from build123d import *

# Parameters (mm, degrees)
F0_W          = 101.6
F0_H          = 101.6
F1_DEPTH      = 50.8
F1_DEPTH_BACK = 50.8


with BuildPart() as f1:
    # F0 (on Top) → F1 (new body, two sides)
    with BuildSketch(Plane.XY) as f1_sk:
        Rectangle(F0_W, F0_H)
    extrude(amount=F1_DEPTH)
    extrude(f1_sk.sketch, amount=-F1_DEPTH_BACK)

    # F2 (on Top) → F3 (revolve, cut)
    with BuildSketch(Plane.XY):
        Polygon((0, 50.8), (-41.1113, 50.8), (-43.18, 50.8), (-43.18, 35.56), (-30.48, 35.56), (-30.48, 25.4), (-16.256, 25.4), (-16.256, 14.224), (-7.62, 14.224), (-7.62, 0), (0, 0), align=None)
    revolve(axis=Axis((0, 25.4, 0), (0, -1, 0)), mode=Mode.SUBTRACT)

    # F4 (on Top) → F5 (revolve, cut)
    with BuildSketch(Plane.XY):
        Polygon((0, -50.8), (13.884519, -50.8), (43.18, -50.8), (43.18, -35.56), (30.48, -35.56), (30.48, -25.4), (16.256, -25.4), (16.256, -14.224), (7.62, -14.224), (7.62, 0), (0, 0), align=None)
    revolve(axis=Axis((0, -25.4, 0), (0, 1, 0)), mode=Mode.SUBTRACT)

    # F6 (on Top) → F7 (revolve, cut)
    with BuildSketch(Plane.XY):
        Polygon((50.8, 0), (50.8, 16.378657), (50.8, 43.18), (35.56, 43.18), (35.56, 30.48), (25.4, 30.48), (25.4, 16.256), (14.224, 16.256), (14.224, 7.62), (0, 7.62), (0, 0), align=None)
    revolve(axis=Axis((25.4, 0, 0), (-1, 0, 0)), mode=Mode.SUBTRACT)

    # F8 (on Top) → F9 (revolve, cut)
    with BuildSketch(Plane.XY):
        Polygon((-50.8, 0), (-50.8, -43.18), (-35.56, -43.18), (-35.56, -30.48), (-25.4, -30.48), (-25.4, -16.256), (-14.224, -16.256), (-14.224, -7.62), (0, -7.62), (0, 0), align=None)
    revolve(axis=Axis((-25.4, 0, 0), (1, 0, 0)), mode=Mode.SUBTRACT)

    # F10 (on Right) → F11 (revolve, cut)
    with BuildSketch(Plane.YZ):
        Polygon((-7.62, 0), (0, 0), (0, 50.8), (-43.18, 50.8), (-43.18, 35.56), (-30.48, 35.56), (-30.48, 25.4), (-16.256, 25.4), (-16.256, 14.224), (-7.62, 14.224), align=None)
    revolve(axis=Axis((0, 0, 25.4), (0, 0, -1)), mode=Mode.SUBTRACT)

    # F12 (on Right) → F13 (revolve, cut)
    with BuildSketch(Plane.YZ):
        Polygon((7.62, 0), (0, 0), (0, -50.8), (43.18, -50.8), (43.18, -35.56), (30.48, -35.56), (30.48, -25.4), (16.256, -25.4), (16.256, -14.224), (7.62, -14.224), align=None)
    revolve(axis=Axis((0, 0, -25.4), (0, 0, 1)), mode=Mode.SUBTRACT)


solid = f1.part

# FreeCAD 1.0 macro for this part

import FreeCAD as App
import Part
import Sketcher
from FreeCAD import Vector
Q = App.Units.Quantity


def add_polygon(sketch, points):
    """Adds a closed chain of lines whose ends are joined by coincident constraints."""
    first, n = sketch.GeometryCount, len(points)
    for a, b in zip(points, points[1:] + points[:1]):
        sketch.addGeometry(Part.LineSegment(App.Vector(*a, 0), App.Vector(*b, 0)), False)
    for i in range(n):
        sketch.addConstraint(Sketcher.Constraint("Coincident", first + i, 2, first + (i + 1) % n, 1))

doc = App.newDocument("Part")
body = doc.addObject("PartDesign::Body", "Body")

# Sketch on XY plane
sketch1 = body.newObject("Sketcher::SketchObject", "Sketch")
sketch1.AttachmentSupport = (doc.getObject("XY_Plane"), [""])
sketch1.MapMode = "FlatFace"
add_polygon(sketch1, [(-51, 51), (-51, -51), (51, -51), (51, 51)])  # lines 0-3
sketch1.addConstraint(Sketcher.Constraint("Vertical", 0))
sketch1.addConstraint(Sketcher.Constraint("Horizontal", 1))
sketch1.addConstraint(Sketcher.Constraint("Vertical", 2))
sketch1.addConstraint(Sketcher.Constraint("Horizontal", 3))
sketch1.addConstraint(Sketcher.Constraint("Symmetric", 0, 2, 2, 2, -1, 1))
sketch1.addConstraint(Sketcher.Constraint("Equal", 3, 0))
sketch1.addConstraint(Sketcher.Constraint("DistanceX", 1, 1, 1, 2, Q("4 in")))
pad1 = body.newObject("PartDesign::Pad", "Pad")
pad1.Profile = sketch1
pad1.Type = "TwoLengths"
pad1.Length = Q("2 in")
pad1.Length2 = Q("2 in")

# Sketch on XY plane
sketch2 = body.newObject("Sketcher::SketchObject", "Sketch001")
sketch2.AttachmentSupport = (doc.getObject("XY_Plane"), [""])
sketch2.MapMode = "FlatFace"
add_polygon(sketch2, [(0, 51), (-43, 51), (-43, 36), (-30, 36), (-30, 25), (-16, 25), (-16, 14), (-8, 14), (-8, 0), (0, 0)])  # lines 0-9
sketch2.addConstraint(Sketcher.Constraint("Horizontal", 0))
sketch2.addConstraint(Sketcher.Constraint("Vertical", 1))
sketch2.addConstraint(Sketcher.Constraint("Horizontal", 2))
sketch2.addConstraint(Sketcher.Constraint("Vertical", 3))
sketch2.addConstraint(Sketcher.Constraint("Horizontal", 4))
sketch2.addConstraint(Sketcher.Constraint("Vertical", 5))
sketch2.addConstraint(Sketcher.Constraint("Horizontal", 6))
sketch2.addConstraint(Sketcher.Constraint("Vertical", 7))
sketch2.addConstraint(Sketcher.Constraint("Horizontal", 8))
sketch2.addConstraint(Sketcher.Constraint("Vertical", 9))
sketch2.addConstraint(Sketcher.Constraint("Coincident", 8, 2, -1, 1))
sketch2.addConstraint(Sketcher.Constraint("Equal", 4, 7))
sketch2.addConstraint(Sketcher.Constraint("DistanceY", 9, 1, 9, 2, Q("2 in")))
sketch2.addConstraint(Sketcher.Constraint("DistanceX", 0, 2, 0, 1, Q("1.7 in")))
sketch2.addConstraint(Sketcher.Constraint("DistanceX", 2, 1, 2, 2, Q("0.5 in")))
sketch2.addConstraint(Sketcher.Constraint("DistanceX", 8, 1, 8, 2, Q("0.3 in")))
sketch2.addConstraint(Sketcher.Constraint("DistanceY", 1, 2, 1, 1, Q("0.6 in")))
sketch2.addConstraint(Sketcher.Constraint("DistanceY", 3, 2, 3, 1, Q("0.4 in")))
sketch2.addConstraint(Sketcher.Constraint("DistanceX", 4, 1, 4, 2, Q("0.56 in")))
groove = body.newObject("PartDesign::Groove", "Groove")
groove.Profile = sketch2
groove.ReferenceAxis = (sketch2, ["V_Axis"])
groove.Angle = 360

# Sketch on XY plane
sketch3 = body.newObject("Sketcher::SketchObject", "Sketch002")
sketch3.AttachmentSupport = (doc.getObject("XY_Plane"), [""])
sketch3.MapMode = "FlatFace"
add_polygon(sketch3, [(0, -51), (43, -51), (43, -36), (30, -36), (30, -25), (16, -25), (16, -14), (8, -14), (8, 0), (0, 0)])  # lines 0-9
sketch3.addConstraint(Sketcher.Constraint("Horizontal", 0))
sketch3.addConstraint(Sketcher.Constraint("Vertical", 1))
sketch3.addConstraint(Sketcher.Constraint("Horizontal", 2))
sketch3.addConstraint(Sketcher.Constraint("Vertical", 3))
sketch3.addConstraint(Sketcher.Constraint("Horizontal", 4))
sketch3.addConstraint(Sketcher.Constraint("Vertical", 5))
sketch3.addConstraint(Sketcher.Constraint("Horizontal", 6))
sketch3.addConstraint(Sketcher.Constraint("Vertical", 7))
sketch3.addConstraint(Sketcher.Constraint("Horizontal", 8))
sketch3.addConstraint(Sketcher.Constraint("Vertical", 9))
sketch3.addConstraint(Sketcher.Constraint("Coincident", 8, 2, -1, 1))
sketch3.addConstraint(Sketcher.Constraint("Equal", 4, 7))
sketch3.addConstraint(Sketcher.Constraint("DistanceY", 9, 2, 9, 1, Q("2 in")))
sketch3.addConstraint(Sketcher.Constraint("DistanceX", 0, 1, 0, 2, Q("1.7 in")))
sketch3.addConstraint(Sketcher.Constraint("DistanceX", 2, 2, 2, 1, Q("0.5 in")))
sketch3.addConstraint(Sketcher.Constraint("DistanceX", 8, 2, 8, 1, Q("0.3 in")))
sketch3.addConstraint(Sketcher.Constraint("DistanceY", 1, 1, 1, 2, Q("0.6 in")))
sketch3.addConstraint(Sketcher.Constraint("DistanceY", 3, 1, 3, 2, Q("0.4 in")))
sketch3.addConstraint(Sketcher.Constraint("DistanceX", 4, 2, 4, 1, Q("0.56 in")))
groove2 = body.newObject("PartDesign::Groove", "Groove001")
groove2.Profile = sketch3
groove2.ReferenceAxis = (sketch3, ["V_Axis"])
groove2.Angle = 360

# Sketch on XY plane
sketch4 = body.newObject("Sketcher::SketchObject", "Sketch003")
sketch4.AttachmentSupport = (doc.getObject("XY_Plane"), [""])
sketch4.MapMode = "FlatFace"
add_polygon(sketch4, [(51, 0), (51, 43), (36, 43), (36, 30), (25, 30), (25, 16), (14, 16), (14, 8), (0, 8), (0, 0)])  # lines 0-9
sketch4.addConstraint(Sketcher.Constraint("Vertical", 0))
sketch4.addConstraint(Sketcher.Constraint("Horizontal", 1))
sketch4.addConstraint(Sketcher.Constraint("Vertical", 2))
sketch4.addConstraint(Sketcher.Constraint("Horizontal", 3))
sketch4.addConstraint(Sketcher.Constraint("Vertical", 4))
sketch4.addConstraint(Sketcher.Constraint("Horizontal", 5))
sketch4.addConstraint(Sketcher.Constraint("Vertical", 6))
sketch4.addConstraint(Sketcher.Constraint("Horizontal", 7))
sketch4.addConstraint(Sketcher.Constraint("Vertical", 8))
sketch4.addConstraint(Sketcher.Constraint("Horizontal", 9))
sketch4.addConstraint(Sketcher.Constraint("Coincident", 8, 2, -1, 1))
sketch4.addConstraint(Sketcher.Constraint("Equal", 7, 4))
sketch4.addConstraint(Sketcher.Constraint("DistanceX", 9, 1, 9, 2, Q("2 in")))
sketch4.addConstraint(Sketcher.Constraint("DistanceX", 1, 2, 1, 1, Q("0.6 in")))
sketch4.addConstraint(Sketcher.Constraint("DistanceX", 3, 2, 3, 1, Q("0.4 in")))
sketch4.addConstraint(Sketcher.Constraint("DistanceY", 0, 1, 0, 2, Q("1.7 in")))
sketch4.addConstraint(Sketcher.Constraint("DistanceY", 2, 2, 2, 1, Q("0.5 in")))
sketch4.addConstraint(Sketcher.Constraint("DistanceY", 8, 2, 8, 1, Q("0.3 in")))
sketch4.addConstraint(Sketcher.Constraint("DistanceX", 5, 2, 5, 1, Q("0.44 in")))
groove3 = body.newObject("PartDesign::Groove", "Groove002")
groove3.Profile = sketch4
groove3.ReferenceAxis = (sketch4, ["H_Axis"])
groove3.Angle = 360

# Sketch on XY plane
sketch5 = body.newObject("Sketcher::SketchObject", "Sketch004")
sketch5.AttachmentSupport = (doc.getObject("XY_Plane"), [""])
sketch5.MapMode = "FlatFace"
add_polygon(sketch5, [(-51, 0), (-51, -43), (-36, -43), (-36, -30), (-25, -30), (-25, -16), (-14, -16), (-14, -8), (0, -8), (0, 0)])  # lines 0-9
sketch5.addConstraint(Sketcher.Constraint("Vertical", 0))
sketch5.addConstraint(Sketcher.Constraint("Horizontal", 1))
sketch5.addConstraint(Sketcher.Constraint("Vertical", 2))
sketch5.addConstraint(Sketcher.Constraint("Horizontal", 3))
sketch5.addConstraint(Sketcher.Constraint("Vertical", 4))
sketch5.addConstraint(Sketcher.Constraint("Horizontal", 5))
sketch5.addConstraint(Sketcher.Constraint("Vertical", 6))
sketch5.addConstraint(Sketcher.Constraint("Horizontal", 7))
sketch5.addConstraint(Sketcher.Constraint("Vertical", 8))
sketch5.addConstraint(Sketcher.Constraint("Horizontal", 9))
sketch5.addConstraint(Sketcher.Constraint("Coincident", 8, 2, -1, 1))
sketch5.addConstraint(Sketcher.Constraint("Equal", 7, 4))
sketch5.addConstraint(Sketcher.Constraint("DistanceX", 9, 2, 9, 1, Q("2 in")))
sketch5.addConstraint(Sketcher.Constraint("DistanceX", 1, 1, 1, 2, Q("0.6 in")))
sketch5.addConstraint(Sketcher.Constraint("DistanceX", 3, 1, 3, 2, Q("0.4 in")))
sketch5.addConstraint(Sketcher.Constraint("DistanceY", 0, 2, 0, 1, Q("1.7 in")))
sketch5.addConstraint(Sketcher.Constraint("DistanceY", 2, 1, 2, 2, Q("0.5 in")))
sketch5.addConstraint(Sketcher.Constraint("DistanceY", 8, 1, 8, 2, Q("0.3 in")))
sketch5.addConstraint(Sketcher.Constraint("DistanceX", 5, 1, 5, 2, Q("0.44 in")))
groove4 = body.newObject("PartDesign::Groove", "Groove003")
groove4.Profile = sketch5
groove4.ReferenceAxis = (sketch5, ["H_Axis"])
groove4.Angle = 360

# Sketch on YZ plane
sketch6 = body.newObject("Sketcher::SketchObject", "Sketch005")
sketch6.AttachmentSupport = (doc.getObject("YZ_Plane"), [""])
sketch6.MapMode = "FlatFace"
add_polygon(sketch6, [(-8, 0), (0, 0), (0, 51), (-43, 51), (-43, 36), (-30, 36), (-30, 25), (-16, 25), (-16, 14), (-8, 14)])  # lines 0-9
sketch6.addConstraint(Sketcher.Constraint("Horizontal", 0))
sketch6.addConstraint(Sketcher.Constraint("Vertical", 1))
sketch6.addConstraint(Sketcher.Constraint("Horizontal", 2))
sketch6.addConstraint(Sketcher.Constraint("Vertical", 3))
sketch6.addConstraint(Sketcher.Constraint("Horizontal", 4))
sketch6.addConstraint(Sketcher.Constraint("Vertical", 5))
sketch6.addConstraint(Sketcher.Constraint("Horizontal", 6))
sketch6.addConstraint(Sketcher.Constraint("Vertical", 7))
sketch6.addConstraint(Sketcher.Constraint("Horizontal", 8))
sketch6.addConstraint(Sketcher.Constraint("Vertical", 9))
sketch6.addConstraint(Sketcher.Constraint("Coincident", 0, 2, -1, 1))
sketch6.addConstraint(Sketcher.Constraint("Equal", 6, 9))
sketch6.addConstraint(Sketcher.Constraint("DistanceY", 1, 1, 1, 2, Q("2 in")))
sketch6.addConstraint(Sketcher.Constraint("DistanceX", 0, 1, 0, 2, Q("0.3 in")))
sketch6.addConstraint(Sketcher.Constraint("DistanceX", 2, 2, 2, 1, Q("1.7 in")))
sketch6.addConstraint(Sketcher.Constraint("DistanceX", 4, 1, 4, 2, Q("0.5 in")))
sketch6.addConstraint(Sketcher.Constraint("DistanceY", 3, 2, 3, 1, Q("0.6 in")))
sketch6.addConstraint(Sketcher.Constraint("DistanceY", 5, 2, 5, 1, Q("0.4 in")))
sketch6.addConstraint(Sketcher.Constraint("DistanceX", 6, 1, 6, 2, Q("0.56 in")))
groove5 = body.newObject("PartDesign::Groove", "Groove004")
groove5.Profile = sketch6
groove5.ReferenceAxis = (sketch6, ["V_Axis"])
groove5.Angle = 360

# Sketch on YZ plane
sketch7 = body.newObject("Sketcher::SketchObject", "Sketch006")
sketch7.AttachmentSupport = (doc.getObject("YZ_Plane"), [""])
sketch7.MapMode = "FlatFace"
add_polygon(sketch7, [(8, 0), (0, 0), (0, -51), (43, -51), (43, -36), (30, -36), (30, -25), (16, -25), (16, -14), (8, -14)])  # lines 0-9
sketch7.addConstraint(Sketcher.Constraint("Horizontal", 0))
sketch7.addConstraint(Sketcher.Constraint("Vertical", 1))
sketch7.addConstraint(Sketcher.Constraint("Horizontal", 2))
sketch7.addConstraint(Sketcher.Constraint("Vertical", 3))
sketch7.addConstraint(Sketcher.Constraint("Horizontal", 4))
sketch7.addConstraint(Sketcher.Constraint("Vertical", 5))
sketch7.addConstraint(Sketcher.Constraint("Horizontal", 6))
sketch7.addConstraint(Sketcher.Constraint("Vertical", 7))
sketch7.addConstraint(Sketcher.Constraint("Horizontal", 8))
sketch7.addConstraint(Sketcher.Constraint("Vertical", 9))
sketch7.addConstraint(Sketcher.Constraint("Coincident", 0, 2, -1, 1))
sketch7.addConstraint(Sketcher.Constraint("Equal", 6, 9))
sketch7.addConstraint(Sketcher.Constraint("DistanceY", 1, 2, 1, 1, Q("2 in")))
sketch7.addConstraint(Sketcher.Constraint("DistanceX", 0, 2, 0, 1, Q("0.3 in")))
sketch7.addConstraint(Sketcher.Constraint("DistanceX", 2, 1, 2, 2, Q("1.7 in")))
sketch7.addConstraint(Sketcher.Constraint("DistanceX", 4, 2, 4, 1, Q("0.5 in")))
sketch7.addConstraint(Sketcher.Constraint("DistanceY", 3, 1, 3, 2, Q("0.6 in")))
sketch7.addConstraint(Sketcher.Constraint("DistanceY", 5, 1, 5, 2, Q("0.4 in")))
sketch7.addConstraint(Sketcher.Constraint("DistanceX", 6, 2, 6, 1, Q("0.56 in")))
groove6 = body.newObject("PartDesign::Groove", "Groove005")
groove6.Profile = sketch7
groove6.ReferenceAxis = (sketch7, ["V_Axis"])
groove6.Angle = 360

doc.recompute()
